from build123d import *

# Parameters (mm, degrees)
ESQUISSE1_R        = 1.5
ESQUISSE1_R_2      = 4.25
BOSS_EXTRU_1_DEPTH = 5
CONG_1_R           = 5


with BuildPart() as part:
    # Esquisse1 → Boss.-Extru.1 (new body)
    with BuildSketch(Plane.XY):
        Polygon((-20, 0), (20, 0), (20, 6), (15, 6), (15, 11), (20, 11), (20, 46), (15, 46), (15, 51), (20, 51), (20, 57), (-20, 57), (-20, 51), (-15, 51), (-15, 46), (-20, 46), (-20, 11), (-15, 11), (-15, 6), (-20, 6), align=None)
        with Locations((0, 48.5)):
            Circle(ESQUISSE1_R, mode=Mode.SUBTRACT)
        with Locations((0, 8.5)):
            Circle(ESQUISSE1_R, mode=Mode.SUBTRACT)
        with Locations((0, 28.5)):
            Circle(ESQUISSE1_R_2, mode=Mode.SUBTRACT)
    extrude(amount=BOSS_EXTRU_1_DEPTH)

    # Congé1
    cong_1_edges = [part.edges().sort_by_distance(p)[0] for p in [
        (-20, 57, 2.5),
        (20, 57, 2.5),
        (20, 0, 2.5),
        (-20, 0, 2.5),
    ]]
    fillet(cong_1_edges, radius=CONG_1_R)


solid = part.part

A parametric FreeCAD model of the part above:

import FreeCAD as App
import Part
import Sketcher
from FreeCAD import Vector
Q = App.Units.Quantity


def edges_at(feature, points):
    """Names of the edges that pass closest to the given points."""
    edges = feature.Shape.Edges
    near = lambda p: min(range(len(edges)), key=lambda i: edges[i].distToShape(Part.Vertex(*p))[0])
    return sorted({f"Edge{near(p) + 1}" for p in points})

doc = App.newDocument("Part")
params = doc.addObject("Spreadsheet::Sheet", "Params")
for row, (alias, value) in enumerate([
    ("sketch1_diameter", "3 mm"),
    ("sketch1_diameter2", "8.5 mm"),
    ("sketch1_width", "40 mm"),
    ("sketch1_width2", "5 mm"),
    ("sketch1_height", "6 mm"),
    ("pad1_length", "5 mm"),
    ("fillet_radius", "5 mm"),
], start=1):
    params.set(f"A{row}", alias)
    params.set(f"B{row}", "=" + value)
    params.setAlias(f"B{row}", alias)

body = doc.addObject("PartDesign::Body", "Body")

sketch1 = body.newObject("Sketcher::SketchObject", "Sketch")
sketch1.AttachmentSupport = (doc.getObject("XY_Plane"), [""])
sketch1.MapMode = "FlatFace"
sketch1.addGeometry([
    Part.LineSegment(Vector(-20, 0, 0), Vector(20, 0, 0)),
    Part.LineSegment(Vector(20, 0, 0), Vector(20, 6, 0)),
    Part.LineSegment(Vector(20, 6, 0), Vector(15, 6, 0)),
    Part.LineSegment(Vector(15, 6, 0), Vector(15, 11, 0)),
    Part.LineSegment(Vector(15, 11, 0), Vector(20, 11, 0)),
    Part.LineSegment(Vector(20, 11, 0), Vector(20, 46, 0)),
    Part.LineSegment(Vector(20, 46, 0), Vector(15, 46, 0)),
    Part.LineSegment(Vector(15, 46, 0), Vector(15, 51, 0)),
    Part.LineSegment(Vector(15, 51, 0), Vector(20, 51, 0)),
    Part.LineSegment(Vector(20, 51, 0), Vector(20, 57, 0)),
    Part.LineSegment(Vector(20, 57, 0), Vector(-20, 57, 0)),
    Part.LineSegment(Vector(-20, 57, 0), Vector(-20, 51, 0)),
    Part.LineSegment(Vector(-20, 51, 0), Vector(-15, 51, 0)),
    Part.LineSegment(Vector(-15, 51, 0), Vector(-15, 46, 0)),
    Part.LineSegment(Vector(-15, 46, 0), Vector(-20, 46, 0)),
    Part.LineSegment(Vector(-20, 46, 0), Vector(-20, 11, 0)),
    Part.LineSegment(Vector(-20, 11, 0), Vector(-15, 11, 0)),
    Part.LineSegment(Vector(-15, 11, 0), Vector(-15, 6, 0)),
    Part.LineSegment(Vector(-15, 6, 0), Vector(-20, 6, 0)),
    Part.LineSegment(Vector(-20, 6, 0), Vector(-20, 0, 0)),
    Part.Circle(Vector(0, 8.5, 0), Vector(0, 0, 1), 1.5),
    Part.Circle(Vector(0, 28.5, 0), Vector(0, 0, 1), 4.2),
    Part.Circle(Vector(0, 48.5, 0), Vector(0, 0, 1), 1.5),
], False)
sketch1.addConstraint([
    Sketcher.Constraint("Coincident", 0, 2, 1, 1),
    Sketcher.Constraint("Coincident", 1, 2, 2, 1),
    Sketcher.Constraint("Coincident", 2, 2, 3, 1),
    Sketcher.Constraint("Coincident", 3, 2, 4, 1),
    Sketcher.Constraint("Coincident", 4, 2, 5, 1),
    Sketcher.Constraint("Coincident", 5, 2, 6, 1),
    Sketcher.Constraint("Coincident", 6, 2, 7, 1),
    Sketcher.Constraint("Coincident", 7, 2, 8, 1),
    Sketcher.Constraint("Coincident", 8, 2, 9, 1),
    Sketcher.Constraint("Coincident", 9, 2, 10, 1),
    Sketcher.Constraint("Coincident", 10, 2, 11, 1),
    Sketcher.Constraint("Coincident", 11, 2, 12, 1),
    Sketcher.Constraint("Coincident", 12, 2, 13, 1),
    Sketcher.Constraint("Coincident", 13, 2, 14, 1),
    Sketcher.Constraint("Coincident", 14, 2, 15, 1),
    Sketcher.Constraint("Coincident", 15, 2, 16, 1),
    Sketcher.Constraint("Coincident", 16, 2, 17, 1),
    Sketcher.Constraint("Coincident", 17, 2, 18, 1),
    Sketcher.Constraint("Coincident", 18, 2, 19, 1),
    Sketcher.Constraint("Coincident", 19, 2, 0, 1),
    Sketcher.Constraint("Horizontal", 0),
    Sketcher.Constraint("Vertical", 1),
    Sketcher.Constraint("Horizontal", 2),
    Sketcher.Constraint("Vertical", 3),
    Sketcher.Constraint("Horizontal", 4),
    Sketcher.Constraint("Vertical", 5),
    Sketcher.Constraint("Horizontal", 6),
    Sketcher.Constraint("Vertical", 7),
    Sketcher.Constraint("Horizontal", 8),
    Sketcher.Constraint("Vertical", 9),
    Sketcher.Constraint("Horizontal", 10),
    Sketcher.Constraint("Vertical", 11),
    Sketcher.Constraint("Horizontal", 12),
    Sketcher.Constraint("Vertical", 13),
    Sketcher.Constraint("Horizontal", 14),
    Sketcher.Constraint("Vertical", 15),
    Sketcher.Constraint("Horizontal", 16),
    Sketcher.Constraint("Vertical", 17),
    Sketcher.Constraint("Horizontal", 18),
    Sketcher.Constraint("Vertical", 19),
    Sketcher.Constraint("Equal", 20, 22),
    Sketcher.Constraint("Symmetric", 0, 2, 19, 2, -1, 1),
    Sketcher.Constraint("Symmetric", 8, 2, 11, 2, -2),
    Sketcher.Constraint("Symmetric", 6, 2, 13, 2, -2),
    Sketcher.Constraint("Symmetric", 4, 2, 15, 2, -2),
    Sketcher.Constraint("Symmetric", 2, 2, 17, 2, -2),
    Sketcher.Constraint("PointOnObject", 20, 3, -2),
    Sketcher.Constraint("PointOnObject", 21, 3, -2),
    Sketcher.Constraint("PointOnObject", 22, 3, -2),
    Sketcher.Constraint("Vertical", 1, 2, 4, 2),
    Sketcher.Constraint("Vertical", 3, 2, 6, 2),
    Sketcher.Constraint("Vertical", 5, 2, 8, 2),
    Sketcher.Constraint("Equal", 18, 3),
    Sketcher.Constraint("Equal", 3, 7),
    Sketcher.Constraint("Equal", 1, 9),
    Sketcher.Constraint("Diameter", 20, Q("3 mm")),
    Sketcher.Constraint("Diameter", 21, Q("8.5 mm")),
    Sketcher.Constraint("DistanceX", 0, 1, 0, 2, Q("40 mm")),
    Sketcher.Constraint("DistanceX", 2, 2, 2, 1, Q("5 mm")),
    Sketcher.Constraint("DistanceY", 1, 1, 1, 2, Q("6 mm")),
    Sketcher.Constraint("DistanceY", 5, 1, 5, 2, Q("35 mm")),
    Sketcher.Constraint("DistanceY", 20, 3, 21, 3, Q("20 mm")),
    Sketcher.Constraint("DistanceY", 21, 3, 22, 3, Q("20 mm")),
    Sketcher.Constraint("DistanceY", -1, 1, 20, 3, Q("8.5 mm")),
])
sketch1.setExpression("Constraints[55]", "Params.sketch1_diameter")
sketch1.setExpression("Constraints[56]", "Params.sketch1_diameter2")
sketch1.setExpression("Constraints[57]", "Params.sketch1_width")
sketch1.setExpression("Constraints[58]", "Params.sketch1_width2")
sketch1.setExpression("Constraints[59]", "Params.sketch1_height")
pad1 = body.newObject("PartDesign::Pad", "Pad")
pad1.Profile = sketch1
pad1.setExpression("Length", "Params.pad1_length")
doc.recompute()

fillet = body.newObject("PartDesign::Fillet", "Fillet")
fillet.Base = (pad1, edges_at(pad1, [
    (-20, 57, 2.5),
    (20, 57, 2.5),
    (20, 0, 2.5),
    (-20, 0, 2.5),
]))
fillet.setExpression("Radius", "Params.fillet_radius")

doc.recompute()
